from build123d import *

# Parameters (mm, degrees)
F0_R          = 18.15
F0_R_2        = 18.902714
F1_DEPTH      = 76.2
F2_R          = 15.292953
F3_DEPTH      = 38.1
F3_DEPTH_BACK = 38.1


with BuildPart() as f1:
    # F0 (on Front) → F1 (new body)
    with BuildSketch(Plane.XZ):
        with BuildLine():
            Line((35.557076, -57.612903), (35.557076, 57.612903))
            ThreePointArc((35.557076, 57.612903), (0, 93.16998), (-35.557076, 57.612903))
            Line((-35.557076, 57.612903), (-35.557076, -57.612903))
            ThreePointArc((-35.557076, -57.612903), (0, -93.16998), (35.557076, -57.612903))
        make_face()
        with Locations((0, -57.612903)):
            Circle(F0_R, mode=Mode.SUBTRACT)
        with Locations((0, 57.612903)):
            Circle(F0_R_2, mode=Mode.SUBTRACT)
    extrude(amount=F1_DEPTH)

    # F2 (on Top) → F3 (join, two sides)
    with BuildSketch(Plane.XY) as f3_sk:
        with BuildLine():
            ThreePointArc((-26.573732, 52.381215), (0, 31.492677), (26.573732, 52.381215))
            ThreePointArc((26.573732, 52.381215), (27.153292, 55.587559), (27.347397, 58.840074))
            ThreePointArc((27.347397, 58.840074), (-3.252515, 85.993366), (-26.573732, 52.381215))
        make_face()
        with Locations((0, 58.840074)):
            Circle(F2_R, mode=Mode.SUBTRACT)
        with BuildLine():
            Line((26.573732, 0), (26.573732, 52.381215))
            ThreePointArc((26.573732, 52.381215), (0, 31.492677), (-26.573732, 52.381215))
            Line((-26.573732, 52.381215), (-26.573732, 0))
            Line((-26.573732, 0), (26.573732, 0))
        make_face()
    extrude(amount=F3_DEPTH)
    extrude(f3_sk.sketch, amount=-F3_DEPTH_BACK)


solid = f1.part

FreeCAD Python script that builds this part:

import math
import FreeCAD as App
import Part
import Sketcher
from FreeCAD import Vector
Q = App.Units.Quantity

doc = App.newDocument("Part")
body = doc.addObject("PartDesign::Body", "Body")

sketch1 = body.newObject("Sketcher::SketchObject", "Sketch")
sketch1.AttachmentSupport = (doc.getObject("XZ_Plane"), [""])
sketch1.MapMode = "FlatFace"
sketch1.addGeometry([
    Part.LineSegment(Vector(36, -58, 0), Vector(36, 58, 0)),
    Part.ArcOfCircle(Part.Circle(Vector(0, 58, 0), Vector(0, 0, 1), 36), math.radians(0), math.radians(180)),
    Part.LineSegment(Vector(-36, 58, 0), Vector(-36, -58, 0)),
    Part.ArcOfCircle(Part.Circle(Vector(0, -58, 0), Vector(0, 0, 1), 36), math.radians(180), math.radians(360)),
    Part.Circle(Vector(0, -58, 0), Vector(0, 0, 1), 18),
    Part.Circle(Vector(0, 58, 0), Vector(0, 0, 1), 19),
], False)
sketch1.addConstraint([
    Sketcher.Constraint("Tangent", 0, 2, 1, 1),
    Sketcher.Constraint("Tangent", 1, 2, 2, 1),
    Sketcher.Constraint("Tangent", 2, 2, 3, 1),
    Sketcher.Constraint("Tangent", 3, 2, 0, 1),
    Sketcher.Constraint("Vertical", 0),
    Sketcher.Constraint("Vertical", 2),
    Sketcher.Constraint("Coincident", 4, 3, 3, 3),
    Sketcher.Constraint("Coincident", 5, 3, 1, 3),
    Sketcher.Constraint("Symmetric", 1, 3, 3, 3, -1, 1),
    Sketcher.Constraint("Diameter", 4, 36.3),
    Sketcher.Constraint("Diameter", 5, 37.805428),
    Sketcher.Constraint("Radius", 1, 35.557076),
    Sketcher.Constraint("DistanceY", 0, 1, 0, 2, 115.225806),
])
pad1 = body.newObject("PartDesign::Pad", "Pad")
pad1.Profile = sketch1
pad1.Length = Q("3 in")

sketch2 = body.newObject("Sketcher::SketchObject", "Sketch001")
sketch2.AttachmentSupport = (doc.getObject("XY_Plane"), [""])
sketch2.MapMode = "FlatFace"
sketch2.addGeometry([
    Part.ArcOfCircle(Part.Circle(Vector(0, 58.840074, 0), Vector(0, 0, 1), 27.347397), math.radians(-0.000001), math.radians(193.661084)),
    Part.LineSegment(Vector(-26.573732, 52.381215, 0), Vector(-26.573732, 0, 0)),
    Part.LineSegment(Vector(-26.573732, 0, 0), Vector(26.573732, 0, 0)),
    Part.LineSegment(Vector(26.573732, 0, 0), Vector(26.573732, 52.381215, 0)),
    Part.ArcOfCircle(Part.Circle(Vector(0.000033, 58.840072, 0), Vector(0, 0, 1), 27.347364), math.radians(-13.661097), math.radians(0.000003)),
    Part.Circle(Vector(0, 58.840074, 0), Vector(0, 0, 1), 15.292953),
], False)
sketch2.addConstraint([
    Sketcher.Constraint("Coincident", 0, 2, 1, 1),
    Sketcher.Constraint("Coincident", 1, 2, 2, 1),
    Sketcher.Constraint("Coincident", 2, 2, 3, 1),
    Sketcher.Constraint("Coincident", 3, 2, 4, 1),
    Sketcher.Constraint("Coincident", 4, 2, 0, 1),
    Sketcher.Constraint("Vertical", 1),
    Sketcher.Constraint("Horizontal", 2),
    Sketcher.Constraint("Vertical", 3),
    Sketcher.Constraint("Coincident", 5, 3, 0, 3),
    Sketcher.Constraint("PointOnObject", 0, 3, -2),
    Sketcher.Constraint("PointOnObject", 1, 2, -1),
    Sketcher.Constraint("Diameter", 5, 30.585906),
    Sketcher.Constraint("Radius", 0, 27.347397),
    Sketcher.Constraint("Radius", 4, 27.347364),
    Sketcher.Constraint("DistanceX", 4, 3, 2, 2, 26.573699),
    Sketcher.Constraint("DistanceX", 2, 1, 2, 2, 53.147464),
    Sketcher.Constraint("DistanceY", 1, 2, 1, 1, 52.381215),
    Sketcher.Constraint("DistanceY", 3, 1, 3, 2, 52.381215),
    Sketcher.Constraint("DistanceY", 3, 2, 4, 2, 6.458859),
])
pad2 = body.newObject("PartDesign::Pad", "Pad001")
pad2.Profile = sketch2
pad2.Type = "TwoLengths"
pad2.Length = Q("1.5 in")
pad2.Length2 = Q("1.5 in")

doc.recompute()
